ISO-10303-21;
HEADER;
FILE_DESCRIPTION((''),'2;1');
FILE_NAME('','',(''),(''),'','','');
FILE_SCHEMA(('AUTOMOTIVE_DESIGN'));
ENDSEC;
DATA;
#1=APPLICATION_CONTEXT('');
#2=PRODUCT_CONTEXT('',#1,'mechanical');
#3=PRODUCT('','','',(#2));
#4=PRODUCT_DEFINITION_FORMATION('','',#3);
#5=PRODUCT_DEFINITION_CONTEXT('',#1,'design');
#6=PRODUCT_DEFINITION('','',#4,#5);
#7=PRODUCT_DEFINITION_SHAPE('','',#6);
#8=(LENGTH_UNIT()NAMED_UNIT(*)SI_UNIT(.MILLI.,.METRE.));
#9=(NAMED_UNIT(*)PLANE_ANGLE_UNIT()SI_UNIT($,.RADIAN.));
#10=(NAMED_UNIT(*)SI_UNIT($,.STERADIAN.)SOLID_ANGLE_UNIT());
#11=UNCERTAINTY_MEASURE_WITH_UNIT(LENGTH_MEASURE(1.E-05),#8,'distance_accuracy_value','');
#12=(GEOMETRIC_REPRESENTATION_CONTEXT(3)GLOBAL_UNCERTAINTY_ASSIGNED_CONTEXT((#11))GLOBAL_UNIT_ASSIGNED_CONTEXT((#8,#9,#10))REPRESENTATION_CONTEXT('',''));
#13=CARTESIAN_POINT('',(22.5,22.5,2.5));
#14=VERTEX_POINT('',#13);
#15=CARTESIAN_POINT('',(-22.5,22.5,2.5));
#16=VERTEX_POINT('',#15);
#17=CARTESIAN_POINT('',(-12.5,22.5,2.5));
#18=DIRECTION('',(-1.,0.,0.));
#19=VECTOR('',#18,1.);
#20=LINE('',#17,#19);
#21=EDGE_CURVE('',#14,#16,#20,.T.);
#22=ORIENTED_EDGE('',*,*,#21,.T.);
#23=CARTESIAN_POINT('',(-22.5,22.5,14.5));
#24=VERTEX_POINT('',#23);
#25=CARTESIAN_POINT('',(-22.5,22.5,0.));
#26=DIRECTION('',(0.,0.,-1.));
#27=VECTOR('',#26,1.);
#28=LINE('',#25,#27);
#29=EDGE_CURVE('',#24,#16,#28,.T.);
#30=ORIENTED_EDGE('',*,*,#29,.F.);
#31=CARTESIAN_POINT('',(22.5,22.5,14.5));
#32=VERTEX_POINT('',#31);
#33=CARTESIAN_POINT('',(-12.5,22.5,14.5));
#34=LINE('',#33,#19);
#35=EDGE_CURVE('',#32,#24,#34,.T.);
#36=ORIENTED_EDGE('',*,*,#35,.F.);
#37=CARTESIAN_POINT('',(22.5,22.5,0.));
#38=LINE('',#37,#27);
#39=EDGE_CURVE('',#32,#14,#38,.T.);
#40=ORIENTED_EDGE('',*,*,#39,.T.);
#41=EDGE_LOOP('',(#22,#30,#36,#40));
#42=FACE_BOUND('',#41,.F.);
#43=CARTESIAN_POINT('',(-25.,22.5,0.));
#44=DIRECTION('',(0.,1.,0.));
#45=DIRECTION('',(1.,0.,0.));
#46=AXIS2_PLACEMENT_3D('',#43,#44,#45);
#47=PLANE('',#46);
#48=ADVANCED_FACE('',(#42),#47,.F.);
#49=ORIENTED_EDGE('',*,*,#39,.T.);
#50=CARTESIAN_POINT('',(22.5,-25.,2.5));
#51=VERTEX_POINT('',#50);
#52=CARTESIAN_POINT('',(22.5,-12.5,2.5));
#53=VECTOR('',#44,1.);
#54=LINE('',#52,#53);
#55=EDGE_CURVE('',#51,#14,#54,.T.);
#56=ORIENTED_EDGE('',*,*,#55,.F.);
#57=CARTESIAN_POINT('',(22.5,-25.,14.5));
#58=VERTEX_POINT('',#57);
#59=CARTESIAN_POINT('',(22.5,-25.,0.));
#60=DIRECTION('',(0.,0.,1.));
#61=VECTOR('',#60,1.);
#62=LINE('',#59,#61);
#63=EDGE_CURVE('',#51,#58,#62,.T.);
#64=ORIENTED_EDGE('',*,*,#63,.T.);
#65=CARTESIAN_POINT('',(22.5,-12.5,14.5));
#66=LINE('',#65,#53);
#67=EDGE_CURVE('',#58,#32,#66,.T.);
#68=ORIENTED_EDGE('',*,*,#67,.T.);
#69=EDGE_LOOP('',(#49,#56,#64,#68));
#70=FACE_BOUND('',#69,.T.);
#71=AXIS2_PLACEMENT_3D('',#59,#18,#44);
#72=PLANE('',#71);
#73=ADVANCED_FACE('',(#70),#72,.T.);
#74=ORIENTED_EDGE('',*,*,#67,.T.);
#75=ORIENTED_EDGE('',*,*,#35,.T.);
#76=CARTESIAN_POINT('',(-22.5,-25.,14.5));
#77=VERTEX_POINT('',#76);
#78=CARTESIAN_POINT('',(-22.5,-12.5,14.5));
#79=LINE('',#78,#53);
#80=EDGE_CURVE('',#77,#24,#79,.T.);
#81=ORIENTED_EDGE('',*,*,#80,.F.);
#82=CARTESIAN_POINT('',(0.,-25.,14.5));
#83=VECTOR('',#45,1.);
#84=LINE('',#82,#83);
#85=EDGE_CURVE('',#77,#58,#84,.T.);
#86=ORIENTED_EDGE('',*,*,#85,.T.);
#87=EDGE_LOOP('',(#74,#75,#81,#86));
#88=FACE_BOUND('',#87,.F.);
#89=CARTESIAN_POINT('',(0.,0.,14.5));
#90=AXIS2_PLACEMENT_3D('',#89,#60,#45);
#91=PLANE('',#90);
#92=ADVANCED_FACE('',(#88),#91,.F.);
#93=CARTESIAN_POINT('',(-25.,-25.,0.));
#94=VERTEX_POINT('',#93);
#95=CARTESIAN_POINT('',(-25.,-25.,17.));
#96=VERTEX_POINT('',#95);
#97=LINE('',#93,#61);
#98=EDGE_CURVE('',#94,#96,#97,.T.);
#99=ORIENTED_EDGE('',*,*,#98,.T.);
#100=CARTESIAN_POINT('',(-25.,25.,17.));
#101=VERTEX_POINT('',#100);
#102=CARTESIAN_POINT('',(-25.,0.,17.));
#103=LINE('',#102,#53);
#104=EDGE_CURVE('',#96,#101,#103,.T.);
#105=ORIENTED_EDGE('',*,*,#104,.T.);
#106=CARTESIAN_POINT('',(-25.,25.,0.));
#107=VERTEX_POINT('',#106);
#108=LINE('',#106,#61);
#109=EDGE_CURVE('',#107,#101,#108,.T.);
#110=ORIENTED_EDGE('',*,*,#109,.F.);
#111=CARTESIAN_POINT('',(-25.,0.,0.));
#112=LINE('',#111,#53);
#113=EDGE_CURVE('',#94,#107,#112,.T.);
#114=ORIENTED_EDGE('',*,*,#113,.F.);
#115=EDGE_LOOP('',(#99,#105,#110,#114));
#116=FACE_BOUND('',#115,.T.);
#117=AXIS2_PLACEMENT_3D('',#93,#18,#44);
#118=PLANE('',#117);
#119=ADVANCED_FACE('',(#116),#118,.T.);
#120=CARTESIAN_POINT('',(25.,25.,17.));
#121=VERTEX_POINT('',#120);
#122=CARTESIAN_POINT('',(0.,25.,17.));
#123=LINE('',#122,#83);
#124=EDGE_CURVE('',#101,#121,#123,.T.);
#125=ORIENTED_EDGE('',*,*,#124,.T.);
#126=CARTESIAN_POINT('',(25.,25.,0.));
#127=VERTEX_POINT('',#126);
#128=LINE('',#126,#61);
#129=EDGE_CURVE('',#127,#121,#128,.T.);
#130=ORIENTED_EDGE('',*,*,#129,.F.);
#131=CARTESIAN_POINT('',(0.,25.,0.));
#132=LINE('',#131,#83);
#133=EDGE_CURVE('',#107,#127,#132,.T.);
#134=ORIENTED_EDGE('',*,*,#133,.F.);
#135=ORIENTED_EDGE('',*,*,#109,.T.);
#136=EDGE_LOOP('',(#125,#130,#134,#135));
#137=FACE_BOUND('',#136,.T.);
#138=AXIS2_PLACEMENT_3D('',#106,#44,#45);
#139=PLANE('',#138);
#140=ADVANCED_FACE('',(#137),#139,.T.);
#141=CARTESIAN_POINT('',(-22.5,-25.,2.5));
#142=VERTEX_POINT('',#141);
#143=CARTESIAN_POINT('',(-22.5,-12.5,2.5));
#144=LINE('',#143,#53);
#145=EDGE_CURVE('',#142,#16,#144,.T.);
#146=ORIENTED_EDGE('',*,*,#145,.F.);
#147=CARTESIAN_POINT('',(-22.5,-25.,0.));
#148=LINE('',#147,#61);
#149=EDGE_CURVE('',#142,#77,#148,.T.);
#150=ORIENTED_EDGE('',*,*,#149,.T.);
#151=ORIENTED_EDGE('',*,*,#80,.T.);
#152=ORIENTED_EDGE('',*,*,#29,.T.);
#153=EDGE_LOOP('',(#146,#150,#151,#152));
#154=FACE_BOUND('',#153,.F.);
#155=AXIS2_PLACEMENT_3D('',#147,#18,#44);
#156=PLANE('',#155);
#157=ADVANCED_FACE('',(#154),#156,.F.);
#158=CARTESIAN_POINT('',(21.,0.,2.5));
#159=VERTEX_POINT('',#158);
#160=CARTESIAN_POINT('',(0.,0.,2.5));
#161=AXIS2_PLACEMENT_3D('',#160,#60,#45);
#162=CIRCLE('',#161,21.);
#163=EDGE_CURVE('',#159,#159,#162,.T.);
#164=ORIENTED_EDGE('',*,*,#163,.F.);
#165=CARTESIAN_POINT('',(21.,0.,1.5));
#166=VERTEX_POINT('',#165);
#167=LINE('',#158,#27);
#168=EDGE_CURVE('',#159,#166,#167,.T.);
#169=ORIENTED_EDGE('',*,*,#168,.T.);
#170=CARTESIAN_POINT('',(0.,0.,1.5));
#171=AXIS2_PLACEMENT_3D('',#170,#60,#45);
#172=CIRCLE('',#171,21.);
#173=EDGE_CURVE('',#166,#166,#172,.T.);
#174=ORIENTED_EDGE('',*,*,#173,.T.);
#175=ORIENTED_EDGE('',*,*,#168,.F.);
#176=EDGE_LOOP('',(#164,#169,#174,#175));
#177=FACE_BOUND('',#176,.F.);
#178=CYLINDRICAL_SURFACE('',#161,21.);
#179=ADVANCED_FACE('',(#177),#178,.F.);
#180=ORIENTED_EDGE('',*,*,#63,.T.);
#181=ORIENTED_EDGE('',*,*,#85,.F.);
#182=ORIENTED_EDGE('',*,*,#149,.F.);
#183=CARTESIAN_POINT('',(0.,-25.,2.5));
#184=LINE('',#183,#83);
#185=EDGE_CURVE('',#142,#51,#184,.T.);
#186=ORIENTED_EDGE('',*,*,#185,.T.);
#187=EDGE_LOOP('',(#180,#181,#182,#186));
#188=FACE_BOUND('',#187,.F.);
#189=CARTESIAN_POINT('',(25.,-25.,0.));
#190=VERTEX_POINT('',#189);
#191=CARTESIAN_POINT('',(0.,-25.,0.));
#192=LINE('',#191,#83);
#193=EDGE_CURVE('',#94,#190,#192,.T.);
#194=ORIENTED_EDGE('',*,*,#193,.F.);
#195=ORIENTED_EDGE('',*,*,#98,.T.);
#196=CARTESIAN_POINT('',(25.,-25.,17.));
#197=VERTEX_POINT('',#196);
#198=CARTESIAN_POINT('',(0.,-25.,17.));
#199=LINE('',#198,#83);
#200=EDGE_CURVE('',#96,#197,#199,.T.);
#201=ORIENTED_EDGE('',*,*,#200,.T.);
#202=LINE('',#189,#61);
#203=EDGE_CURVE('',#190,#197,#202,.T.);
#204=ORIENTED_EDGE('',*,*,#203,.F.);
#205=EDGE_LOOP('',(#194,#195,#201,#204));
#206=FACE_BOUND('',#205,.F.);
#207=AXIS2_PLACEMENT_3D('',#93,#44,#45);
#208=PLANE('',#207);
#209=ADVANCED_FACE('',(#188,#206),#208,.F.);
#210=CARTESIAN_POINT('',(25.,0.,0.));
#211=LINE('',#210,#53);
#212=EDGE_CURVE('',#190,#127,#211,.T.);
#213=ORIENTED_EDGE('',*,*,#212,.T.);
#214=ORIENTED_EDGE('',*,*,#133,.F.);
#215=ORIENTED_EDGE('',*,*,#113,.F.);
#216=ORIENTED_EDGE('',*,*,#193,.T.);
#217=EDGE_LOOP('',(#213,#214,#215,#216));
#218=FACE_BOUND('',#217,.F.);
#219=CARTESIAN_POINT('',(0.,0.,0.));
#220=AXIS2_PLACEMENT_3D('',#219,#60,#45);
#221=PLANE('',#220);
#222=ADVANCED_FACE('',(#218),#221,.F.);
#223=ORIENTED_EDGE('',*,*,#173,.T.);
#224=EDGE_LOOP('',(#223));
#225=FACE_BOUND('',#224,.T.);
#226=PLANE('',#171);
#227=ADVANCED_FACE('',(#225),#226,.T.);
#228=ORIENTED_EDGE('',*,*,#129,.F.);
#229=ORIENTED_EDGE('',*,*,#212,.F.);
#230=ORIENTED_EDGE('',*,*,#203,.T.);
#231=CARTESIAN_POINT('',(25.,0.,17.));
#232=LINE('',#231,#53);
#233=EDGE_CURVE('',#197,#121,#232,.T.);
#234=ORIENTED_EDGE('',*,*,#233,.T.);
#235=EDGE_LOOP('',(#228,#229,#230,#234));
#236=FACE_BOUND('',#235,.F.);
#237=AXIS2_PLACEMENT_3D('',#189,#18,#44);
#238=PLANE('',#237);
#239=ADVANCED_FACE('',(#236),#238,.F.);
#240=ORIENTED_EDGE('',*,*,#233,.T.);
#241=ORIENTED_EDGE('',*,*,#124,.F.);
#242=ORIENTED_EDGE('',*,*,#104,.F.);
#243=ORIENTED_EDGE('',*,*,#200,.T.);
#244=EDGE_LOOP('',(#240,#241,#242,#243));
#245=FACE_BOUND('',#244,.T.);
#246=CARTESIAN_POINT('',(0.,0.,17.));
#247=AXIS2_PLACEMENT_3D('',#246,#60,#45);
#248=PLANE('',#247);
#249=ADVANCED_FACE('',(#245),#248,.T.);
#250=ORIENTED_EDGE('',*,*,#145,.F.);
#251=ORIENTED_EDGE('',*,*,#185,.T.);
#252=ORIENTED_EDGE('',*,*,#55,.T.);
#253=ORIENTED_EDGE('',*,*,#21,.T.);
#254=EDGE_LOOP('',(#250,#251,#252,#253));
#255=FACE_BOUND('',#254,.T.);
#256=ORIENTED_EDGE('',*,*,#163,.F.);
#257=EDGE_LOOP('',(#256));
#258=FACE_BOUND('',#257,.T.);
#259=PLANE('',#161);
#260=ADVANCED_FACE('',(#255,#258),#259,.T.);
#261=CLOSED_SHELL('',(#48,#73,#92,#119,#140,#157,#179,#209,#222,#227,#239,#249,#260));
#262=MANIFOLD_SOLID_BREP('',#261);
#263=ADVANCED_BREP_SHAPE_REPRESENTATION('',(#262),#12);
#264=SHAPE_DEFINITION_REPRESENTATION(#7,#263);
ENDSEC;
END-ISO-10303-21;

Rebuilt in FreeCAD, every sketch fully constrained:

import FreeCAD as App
import Part
import Sketcher
Q = App.Units.Quantity


def faces_at(feature, points):
    """Names of the faces that lie closest to the given points."""
    faces = feature.Shape.Faces
    near = lambda p: min(range(len(faces)), key=lambda i: faces[i].distToShape(Part.Vertex(*p))[0])
    return sorted({f"Face{near(p) + 1}" for p in points})


def add_polygon(sketch, points):
    """Adds a closed chain of lines whose ends are joined by coincident constraints."""
    first, n = sketch.GeometryCount, len(points)
    for a, b in zip(points, points[1:] + points[:1]):
        sketch.addGeometry(Part.LineSegment(App.Vector(*a, 0), App.Vector(*b, 0)), False)
    for i in range(n):
        sketch.addConstraint(Sketcher.Constraint("Coincident", first + i, 2, first + (i + 1) % n, 1))

doc = App.newDocument("Part")
params = doc.addObject("Spreadsheet::Sheet", "Params")
for row, (alias, value) in enumerate([
    ("sketch1_width", "50 mm"),
    ("pad1_length", "17 mm"),
    ("thickness_wall", "2.5 mm"),
    ("sketch2_diameter", "42 mm"),
    ("pocket1_length", "1 mm"),
], start=1):
    params.set(f"A{row}", alias)
    params.set(f"B{row}", "=" + value)
    params.setAlias(f"B{row}", alias)

body = doc.addObject("PartDesign::Body", "Body")

# Sketch on XY plane
sketch1 = body.newObject("Sketcher::SketchObject", "Sketch")
sketch1.AttachmentSupport = (doc.getObject("XY_Plane"), [""])
sketch1.MapMode = "FlatFace"
add_polygon(sketch1, [(-25, 25), (-25, -25), (25, -25), (25, 25)])  # lines 0-3
sketch1.addConstraint(Sketcher.Constraint("Vertical", 0))
sketch1.addConstraint(Sketcher.Constraint("Horizontal", 1))
sketch1.addConstraint(Sketcher.Constraint("Vertical", 2))
sketch1.addConstraint(Sketcher.Constraint("Horizontal", 3))
sketch1.addConstraint(Sketcher.Constraint("Symmetric", 0, 2, 2, 2, -1, 1))
sketch1.addConstraint(Sketcher.Constraint("Equal", 3, 0))
sketch1.addConstraint(Sketcher.Constraint("DistanceX", 1, 1, 1, 2, Q("50 mm")))
sketch1.setExpression("Constraints[10]", "Params.sketch1_width")
pad1 = body.newObject("PartDesign::Pad", "Pad")
pad1.Profile = sketch1
pad1.setExpression("Length", "Params.pad1_length")
doc.recompute()

thickness = body.newObject("PartDesign::Thickness", "Thickness")
thickness.Base = (pad1, faces_at(pad1, [(0, -25, 8.5)]))
thickness.setExpression("Value", "Params.thickness_wall")
thickness.Reversed = True
thickness.Join = "Arc"

# Sketch on XY plane
sketch2 = body.newObject("Sketcher::SketchObject", "Sketch001")
sketch2.AttachmentSupport = (doc.getObject("XY_Plane"), [""])
sketch2.MapMode = "FlatFace"
sketch2.AttachmentOffset = App.Placement(App.Vector(0, 0, 2.5), App.Rotation())
sketch2.addGeometry(Part.Circle(App.Vector(0, 0, 0), App.Vector(0, 0, 1), 21), False)
sketch2.addConstraint(Sketcher.Constraint("Coincident", 0, 3, -1, 1))
sketch2.addConstraint(Sketcher.Constraint("Diameter", 0, Q("42 mm")))
sketch2.setExpression("Constraints[1]", "Params.sketch2_diameter")
pocket1 = body.newObject("PartDesign::Pocket", "Pocket")
pocket1.Profile = sketch2
pocket1.setExpression("Length", "Params.pocket1_length")

doc.recompute()
